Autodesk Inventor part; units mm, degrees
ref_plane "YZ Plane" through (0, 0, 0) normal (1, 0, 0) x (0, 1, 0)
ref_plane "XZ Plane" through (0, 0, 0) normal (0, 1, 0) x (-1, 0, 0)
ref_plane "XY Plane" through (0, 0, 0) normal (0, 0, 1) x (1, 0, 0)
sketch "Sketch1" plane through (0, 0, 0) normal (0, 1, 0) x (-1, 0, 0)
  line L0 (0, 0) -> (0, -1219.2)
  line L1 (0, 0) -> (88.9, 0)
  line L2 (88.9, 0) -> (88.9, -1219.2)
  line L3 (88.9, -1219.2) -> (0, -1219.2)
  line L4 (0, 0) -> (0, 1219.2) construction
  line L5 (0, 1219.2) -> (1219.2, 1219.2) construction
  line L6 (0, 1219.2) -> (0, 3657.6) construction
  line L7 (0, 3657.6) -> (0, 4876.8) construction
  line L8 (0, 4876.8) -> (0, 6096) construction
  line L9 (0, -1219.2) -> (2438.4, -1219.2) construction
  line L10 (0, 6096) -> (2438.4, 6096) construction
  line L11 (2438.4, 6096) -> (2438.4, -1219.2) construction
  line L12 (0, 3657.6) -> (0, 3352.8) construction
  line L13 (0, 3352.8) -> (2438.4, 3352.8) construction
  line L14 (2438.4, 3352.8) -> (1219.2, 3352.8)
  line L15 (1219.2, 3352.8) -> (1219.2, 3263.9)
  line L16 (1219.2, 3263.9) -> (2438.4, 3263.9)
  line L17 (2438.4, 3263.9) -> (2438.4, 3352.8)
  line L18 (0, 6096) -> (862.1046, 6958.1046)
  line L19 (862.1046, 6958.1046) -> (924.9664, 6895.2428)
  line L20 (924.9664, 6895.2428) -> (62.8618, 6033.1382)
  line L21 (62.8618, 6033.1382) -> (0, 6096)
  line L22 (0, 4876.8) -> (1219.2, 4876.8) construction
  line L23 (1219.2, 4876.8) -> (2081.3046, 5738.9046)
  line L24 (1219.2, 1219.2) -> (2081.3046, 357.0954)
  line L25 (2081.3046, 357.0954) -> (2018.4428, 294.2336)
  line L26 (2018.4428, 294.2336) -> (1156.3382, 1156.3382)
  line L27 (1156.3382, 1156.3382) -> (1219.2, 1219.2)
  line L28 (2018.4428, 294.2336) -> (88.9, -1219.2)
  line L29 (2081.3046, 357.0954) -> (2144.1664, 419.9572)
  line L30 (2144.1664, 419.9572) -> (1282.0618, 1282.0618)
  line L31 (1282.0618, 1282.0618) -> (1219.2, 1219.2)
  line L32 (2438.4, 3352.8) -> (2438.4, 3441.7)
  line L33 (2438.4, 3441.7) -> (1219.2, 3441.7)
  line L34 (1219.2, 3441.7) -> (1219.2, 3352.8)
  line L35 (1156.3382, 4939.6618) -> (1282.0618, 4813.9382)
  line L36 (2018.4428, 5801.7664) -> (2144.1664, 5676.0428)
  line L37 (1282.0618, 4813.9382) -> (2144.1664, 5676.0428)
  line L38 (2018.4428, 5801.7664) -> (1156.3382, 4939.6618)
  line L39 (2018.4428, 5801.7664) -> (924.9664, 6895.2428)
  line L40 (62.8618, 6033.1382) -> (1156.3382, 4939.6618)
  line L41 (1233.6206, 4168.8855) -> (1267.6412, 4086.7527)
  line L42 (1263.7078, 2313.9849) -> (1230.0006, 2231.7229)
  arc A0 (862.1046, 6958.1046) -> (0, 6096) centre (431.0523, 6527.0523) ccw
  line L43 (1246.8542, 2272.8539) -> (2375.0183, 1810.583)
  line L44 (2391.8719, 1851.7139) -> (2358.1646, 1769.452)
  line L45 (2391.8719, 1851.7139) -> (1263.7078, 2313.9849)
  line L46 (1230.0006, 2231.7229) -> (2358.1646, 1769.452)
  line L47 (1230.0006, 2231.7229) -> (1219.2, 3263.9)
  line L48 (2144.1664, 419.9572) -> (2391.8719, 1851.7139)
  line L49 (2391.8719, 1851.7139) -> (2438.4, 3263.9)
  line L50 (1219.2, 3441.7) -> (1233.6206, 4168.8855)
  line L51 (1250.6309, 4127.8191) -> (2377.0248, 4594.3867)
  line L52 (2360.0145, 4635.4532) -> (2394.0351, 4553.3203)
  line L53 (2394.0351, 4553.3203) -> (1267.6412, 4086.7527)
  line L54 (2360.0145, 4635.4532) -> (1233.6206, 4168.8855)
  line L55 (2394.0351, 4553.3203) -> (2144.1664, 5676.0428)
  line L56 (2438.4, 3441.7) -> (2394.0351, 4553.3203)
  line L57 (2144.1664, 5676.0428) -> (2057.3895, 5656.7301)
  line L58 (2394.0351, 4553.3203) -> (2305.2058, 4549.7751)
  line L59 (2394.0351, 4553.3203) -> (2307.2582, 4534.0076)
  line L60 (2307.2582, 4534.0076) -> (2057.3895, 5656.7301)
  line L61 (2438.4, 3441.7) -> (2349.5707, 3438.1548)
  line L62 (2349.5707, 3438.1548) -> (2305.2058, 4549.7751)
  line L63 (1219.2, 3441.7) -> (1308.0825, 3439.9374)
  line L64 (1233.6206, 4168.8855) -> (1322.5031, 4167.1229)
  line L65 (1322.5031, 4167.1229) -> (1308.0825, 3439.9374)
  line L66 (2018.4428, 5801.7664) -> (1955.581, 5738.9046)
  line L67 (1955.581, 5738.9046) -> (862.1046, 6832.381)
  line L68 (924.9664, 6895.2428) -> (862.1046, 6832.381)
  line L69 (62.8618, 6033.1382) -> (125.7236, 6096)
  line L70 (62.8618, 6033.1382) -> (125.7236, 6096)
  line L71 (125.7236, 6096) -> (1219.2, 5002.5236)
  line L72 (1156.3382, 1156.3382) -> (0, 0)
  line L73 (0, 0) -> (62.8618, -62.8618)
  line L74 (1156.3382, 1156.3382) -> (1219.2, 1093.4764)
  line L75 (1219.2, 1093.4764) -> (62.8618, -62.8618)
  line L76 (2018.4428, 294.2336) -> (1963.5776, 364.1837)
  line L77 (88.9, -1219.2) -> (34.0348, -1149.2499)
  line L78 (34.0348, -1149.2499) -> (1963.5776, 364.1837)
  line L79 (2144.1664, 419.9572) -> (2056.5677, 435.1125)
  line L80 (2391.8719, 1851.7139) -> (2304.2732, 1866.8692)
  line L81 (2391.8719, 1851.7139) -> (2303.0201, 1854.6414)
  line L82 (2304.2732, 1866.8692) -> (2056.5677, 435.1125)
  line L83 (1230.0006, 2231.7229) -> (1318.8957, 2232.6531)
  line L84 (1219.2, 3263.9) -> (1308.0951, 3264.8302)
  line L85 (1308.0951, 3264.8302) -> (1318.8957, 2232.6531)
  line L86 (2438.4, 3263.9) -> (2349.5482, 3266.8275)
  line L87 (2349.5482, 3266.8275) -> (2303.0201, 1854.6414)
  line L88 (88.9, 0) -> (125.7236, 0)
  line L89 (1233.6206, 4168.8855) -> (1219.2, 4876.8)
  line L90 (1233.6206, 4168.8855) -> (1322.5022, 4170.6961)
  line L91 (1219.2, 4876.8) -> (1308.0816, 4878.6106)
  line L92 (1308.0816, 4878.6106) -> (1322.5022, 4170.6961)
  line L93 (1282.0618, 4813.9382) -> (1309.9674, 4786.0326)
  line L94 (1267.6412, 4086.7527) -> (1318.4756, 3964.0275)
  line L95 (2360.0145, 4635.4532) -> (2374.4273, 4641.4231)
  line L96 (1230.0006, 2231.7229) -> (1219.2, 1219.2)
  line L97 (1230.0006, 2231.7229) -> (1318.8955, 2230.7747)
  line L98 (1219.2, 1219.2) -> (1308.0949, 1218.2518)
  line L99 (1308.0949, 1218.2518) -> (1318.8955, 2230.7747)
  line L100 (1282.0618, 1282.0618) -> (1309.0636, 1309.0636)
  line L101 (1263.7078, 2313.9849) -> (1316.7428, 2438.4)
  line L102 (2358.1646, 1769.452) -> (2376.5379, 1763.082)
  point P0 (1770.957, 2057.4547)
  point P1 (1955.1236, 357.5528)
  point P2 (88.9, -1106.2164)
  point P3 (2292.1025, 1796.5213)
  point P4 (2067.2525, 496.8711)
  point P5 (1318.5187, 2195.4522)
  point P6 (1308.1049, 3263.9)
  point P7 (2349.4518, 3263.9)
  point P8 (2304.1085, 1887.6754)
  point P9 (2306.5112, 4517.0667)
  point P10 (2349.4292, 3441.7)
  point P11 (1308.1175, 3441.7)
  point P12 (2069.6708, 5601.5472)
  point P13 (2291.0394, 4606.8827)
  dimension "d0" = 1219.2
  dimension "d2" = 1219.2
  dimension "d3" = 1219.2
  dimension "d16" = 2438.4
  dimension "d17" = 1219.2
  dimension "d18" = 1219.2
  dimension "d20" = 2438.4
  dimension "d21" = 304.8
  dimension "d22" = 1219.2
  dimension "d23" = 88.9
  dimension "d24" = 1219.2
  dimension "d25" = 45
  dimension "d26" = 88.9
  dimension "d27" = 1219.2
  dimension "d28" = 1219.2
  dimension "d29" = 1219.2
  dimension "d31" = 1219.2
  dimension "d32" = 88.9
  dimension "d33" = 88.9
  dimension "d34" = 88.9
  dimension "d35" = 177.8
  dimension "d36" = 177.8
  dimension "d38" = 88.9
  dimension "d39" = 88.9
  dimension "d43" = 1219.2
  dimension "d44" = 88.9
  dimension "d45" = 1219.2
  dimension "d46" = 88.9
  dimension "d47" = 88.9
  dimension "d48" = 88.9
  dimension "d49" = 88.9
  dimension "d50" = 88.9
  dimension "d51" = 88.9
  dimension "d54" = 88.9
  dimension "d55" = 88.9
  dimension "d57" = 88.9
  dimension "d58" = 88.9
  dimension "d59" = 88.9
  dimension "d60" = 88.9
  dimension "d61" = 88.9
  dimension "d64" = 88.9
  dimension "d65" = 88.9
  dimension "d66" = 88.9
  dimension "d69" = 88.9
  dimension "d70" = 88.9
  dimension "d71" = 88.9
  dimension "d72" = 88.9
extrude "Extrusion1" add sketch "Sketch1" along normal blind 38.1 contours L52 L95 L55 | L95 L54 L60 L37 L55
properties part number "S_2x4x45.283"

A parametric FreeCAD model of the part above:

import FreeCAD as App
import Part
import Sketcher

V = App.Vector
Q = App.Units.Quantity


def add_polygon(sketch, points):
    """Adds a closed chain of lines whose ends are joined by coincident constraints."""
    first, n = sketch.GeometryCount, len(points)
    for a, b in zip(points, points[1:] + points[:1]):
        sketch.addGeometry(Part.LineSegment(App.Vector(*a, 0), App.Vector(*b, 0)), False)
    for i in range(n):
        sketch.addConstraint(Sketcher.Constraint("Coincident", first + i, 2, first + (i + 1) % n, 1))

doc = App.newDocument("Part")
body = doc.addObject("PartDesign::Body", "Body")

sketch1 = doc.addObject("Sketcher::SketchObject", "Sketch")
body.addObject(sketch1)
sketch1.AttachmentSupport = (doc.XZ_Plane, [""])
sketch1.MapMode = "FlatFace"
add_polygon(sketch1, [(-2394.0351, 4553.3203), (-2144.1664, 5676.0428), (-2069.670791, 5601.547191), (-2291.039389, 4606.882769), (-2360.0145, 4635.4532)])
sketch1.addConstraint([
    Sketcher.Constraint("Parallel", 0, 2),
    Sketcher.Constraint("Perpendicular", 3, 4),
    Sketcher.Constraint("Angle", 1, Q("-45 deg")),
    Sketcher.Constraint("Distance", 4, Q("3.5 in")),
    Sketcher.Constraint("Angle", 3, Q("157.5 deg")),
    Sketcher.Constraint("DistanceX", 0, 2, -1, 1, Q("84.416 in")),
    Sketcher.Constraint("Distance", 3, Q("2.9393 in")),
    Sketcher.Constraint("DistanceX", 1, 2, -1, 1, Q("81.4831 in")),
    Sketcher.Constraint("DistanceX", 2, 2, -1, 1, Q("90.1984 in")),
    Sketcher.Constraint("DistanceY", -1, 1, 0, 2, Q("5676.0428 mm")),
])
pad1 = doc.addObject("PartDesign::Pad", "Pad")
body.addObject(pad1)
pad1.Profile = sketch1
pad1.Length = Q("1.5 in")
pad1.Reversed = True

doc.recompute()
